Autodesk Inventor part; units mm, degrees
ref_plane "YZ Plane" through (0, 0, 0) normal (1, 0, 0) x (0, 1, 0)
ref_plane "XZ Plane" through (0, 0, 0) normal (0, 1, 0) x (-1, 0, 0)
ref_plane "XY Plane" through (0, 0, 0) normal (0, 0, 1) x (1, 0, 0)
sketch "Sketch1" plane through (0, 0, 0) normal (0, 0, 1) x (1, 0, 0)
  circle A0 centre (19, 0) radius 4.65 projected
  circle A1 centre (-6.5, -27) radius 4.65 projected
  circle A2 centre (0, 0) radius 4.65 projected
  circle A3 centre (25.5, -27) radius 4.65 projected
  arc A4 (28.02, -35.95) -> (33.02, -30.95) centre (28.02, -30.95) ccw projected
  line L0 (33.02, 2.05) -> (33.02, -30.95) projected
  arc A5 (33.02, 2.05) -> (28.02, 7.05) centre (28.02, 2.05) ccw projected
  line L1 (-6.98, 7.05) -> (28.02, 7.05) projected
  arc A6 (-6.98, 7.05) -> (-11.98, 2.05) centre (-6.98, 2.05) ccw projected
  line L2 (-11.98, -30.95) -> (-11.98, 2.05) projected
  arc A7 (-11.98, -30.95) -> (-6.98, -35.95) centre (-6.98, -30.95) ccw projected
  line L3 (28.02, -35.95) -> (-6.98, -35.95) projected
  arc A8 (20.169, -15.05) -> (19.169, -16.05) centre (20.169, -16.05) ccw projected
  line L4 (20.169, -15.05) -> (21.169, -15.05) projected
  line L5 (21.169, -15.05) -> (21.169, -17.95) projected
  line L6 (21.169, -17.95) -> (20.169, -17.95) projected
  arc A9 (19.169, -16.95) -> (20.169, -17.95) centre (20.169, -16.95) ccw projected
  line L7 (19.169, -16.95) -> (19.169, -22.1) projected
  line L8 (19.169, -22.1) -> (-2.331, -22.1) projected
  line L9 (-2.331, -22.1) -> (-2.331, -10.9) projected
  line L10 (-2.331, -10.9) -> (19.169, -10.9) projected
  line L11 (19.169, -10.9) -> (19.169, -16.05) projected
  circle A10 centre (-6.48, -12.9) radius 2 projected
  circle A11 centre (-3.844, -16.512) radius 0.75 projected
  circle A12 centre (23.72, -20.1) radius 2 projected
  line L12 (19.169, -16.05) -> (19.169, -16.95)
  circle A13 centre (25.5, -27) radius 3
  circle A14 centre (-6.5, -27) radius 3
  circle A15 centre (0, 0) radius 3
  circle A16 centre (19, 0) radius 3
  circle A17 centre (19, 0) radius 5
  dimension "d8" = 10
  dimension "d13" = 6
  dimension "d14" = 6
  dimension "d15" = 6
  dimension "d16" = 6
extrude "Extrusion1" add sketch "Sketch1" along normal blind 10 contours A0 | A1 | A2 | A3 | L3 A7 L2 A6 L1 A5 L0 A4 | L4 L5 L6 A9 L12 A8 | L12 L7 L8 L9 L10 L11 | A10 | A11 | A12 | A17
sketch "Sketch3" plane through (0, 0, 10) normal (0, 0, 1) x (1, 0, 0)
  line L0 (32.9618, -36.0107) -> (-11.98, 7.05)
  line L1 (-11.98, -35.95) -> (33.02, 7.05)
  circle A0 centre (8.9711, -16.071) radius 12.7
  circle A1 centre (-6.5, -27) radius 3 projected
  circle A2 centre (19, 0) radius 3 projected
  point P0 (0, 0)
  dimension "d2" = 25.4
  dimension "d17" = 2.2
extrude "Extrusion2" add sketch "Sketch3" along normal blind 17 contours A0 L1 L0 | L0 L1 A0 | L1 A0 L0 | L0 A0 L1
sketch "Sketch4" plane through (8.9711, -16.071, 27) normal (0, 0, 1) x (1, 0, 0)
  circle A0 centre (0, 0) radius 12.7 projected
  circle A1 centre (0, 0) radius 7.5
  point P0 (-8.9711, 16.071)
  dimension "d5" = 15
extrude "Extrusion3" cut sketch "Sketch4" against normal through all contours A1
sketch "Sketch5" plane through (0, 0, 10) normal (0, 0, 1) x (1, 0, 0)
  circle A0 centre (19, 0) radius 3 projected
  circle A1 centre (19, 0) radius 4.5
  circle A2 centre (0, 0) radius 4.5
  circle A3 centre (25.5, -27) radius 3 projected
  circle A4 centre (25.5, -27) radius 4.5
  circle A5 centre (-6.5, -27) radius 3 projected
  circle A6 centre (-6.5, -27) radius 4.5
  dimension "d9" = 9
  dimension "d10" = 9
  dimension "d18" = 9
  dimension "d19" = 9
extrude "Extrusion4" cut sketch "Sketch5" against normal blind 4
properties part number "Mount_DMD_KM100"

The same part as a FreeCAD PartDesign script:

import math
import FreeCAD as App
import Part
import Sketcher
Q = App.Units.Quantity

doc = App.newDocument("Part")
body = doc.addObject("PartDesign::Body", "Body")

sketch1 = doc.addObject("Sketcher::SketchObject", "Sketch")
body.addObject(sketch1)
sketch1.AttachmentSupport = (doc.XY_Plane, [""])
sketch1.MapMode = "FlatFace"
sketch1.addGeometry(Part.LineSegment(App.Vector(-6.98, -35.95, 0), App.Vector(28.02, -35.95, 0)), False)
sketch1.addGeometry(Part.ArcOfCircle(Part.Circle(App.Vector(28.02, -30.95, 0), App.Vector(0, 0, 1), 5), math.radians(-90), math.radians(0)), False)
sketch1.addGeometry(Part.LineSegment(App.Vector(33.02, -30.95, 0), App.Vector(33.02, 2.05, 0)), False)
sketch1.addGeometry(Part.ArcOfCircle(Part.Circle(App.Vector(28.02, 2.05, 0), App.Vector(0, 0, 1), 5), math.radians(0), math.radians(90)), False)
sketch1.addGeometry(Part.LineSegment(App.Vector(28.02, 7.05, 0), App.Vector(-6.98, 7.05, 0)), False)
sketch1.addGeometry(Part.ArcOfCircle(Part.Circle(App.Vector(-6.98, 2.05, 0), App.Vector(0, 0, 1), 5), math.radians(90), math.radians(180)), False)
sketch1.addGeometry(Part.LineSegment(App.Vector(-11.98, 2.05, 0), App.Vector(-11.98, -30.95, 0)), False)
sketch1.addGeometry(Part.ArcOfCircle(Part.Circle(App.Vector(-6.98, -30.95, 0), App.Vector(0, 0, 1), 5), math.radians(180), math.radians(270)), False)
sketch1.addGeometry(Part.Circle(App.Vector(19, 0, 0), App.Vector(0, 0, 1), 3), False)
sketch1.addGeometry(Part.Circle(App.Vector(-6.5, -27, 0), App.Vector(0, 0, 1), 3), False)
sketch1.addGeometry(Part.Circle(App.Vector(25.5, -27, 0), App.Vector(0, 0, 1), 3), False)
sketch1.addGeometry(Part.Circle(App.Vector(0, 0, 0), App.Vector(0, 0, 1), 3), False)
sketch1.addConstraint(Sketcher.Constraint("Tangent", 0, 2, 1, 1))
sketch1.addConstraint(Sketcher.Constraint("Tangent", 1, 2, 2, 1))
sketch1.addConstraint(Sketcher.Constraint("Tangent", 2, 2, 3, 1))
sketch1.addConstraint(Sketcher.Constraint("Tangent", 3, 2, 4, 1))
sketch1.addConstraint(Sketcher.Constraint("Tangent", 4, 2, 5, 1))
sketch1.addConstraint(Sketcher.Constraint("Tangent", 5, 2, 6, 1))
sketch1.addConstraint(Sketcher.Constraint("Tangent", 6, 2, 7, 1))
sketch1.addConstraint(Sketcher.Constraint("Tangent", 7, 2, 0, 1))
sketch1.addConstraint(Sketcher.Constraint("Horizontal", 0))
sketch1.addConstraint(Sketcher.Constraint("Vertical", 2))
sketch1.addConstraint(Sketcher.Constraint("Horizontal", 4))
sketch1.addConstraint(Sketcher.Constraint("Vertical", 6))
sketch1.addConstraint(Sketcher.Constraint("Coincident", 11, 3, -1, 1))
sketch1.addConstraint(Sketcher.Constraint("Equal", 1, 3))
sketch1.addConstraint(Sketcher.Constraint("Equal", 3, 5))
sketch1.addConstraint(Sketcher.Constraint("Equal", 5, 7))
sketch1.addConstraint(Sketcher.Constraint("Equal", 8, 9))
sketch1.addConstraint(Sketcher.Constraint("Equal", 9, 10))
sketch1.addConstraint(Sketcher.Constraint("Equal", 10, 11))
sketch1.addConstraint(Sketcher.Constraint("PointOnObject", 8, 3, -1))
sketch1.addConstraint(Sketcher.Constraint("Horizontal", 9, 3, 10, 3))
sketch1.addConstraint(Sketcher.Constraint("Diameter", 8, Q("6 mm")))
sketch1.addConstraint(Sketcher.Constraint("Radius", 1, Q("5 mm")))
sketch1.addConstraint(Sketcher.Constraint("DistanceX", 0, 1, 0, 2, Q("35 mm")))
sketch1.addConstraint(Sketcher.Constraint("DistanceY", 2, 1, 2, 2, Q("33 mm")))
sketch1.addConstraint(Sketcher.Constraint("DistanceX", -1, 1, 8, 3, Q("19 mm")))
sketch1.addConstraint(Sketcher.Constraint("DistanceY", 9, 3, -1, 1, Q("27 mm")))
sketch1.addConstraint(Sketcher.Constraint("DistanceX", 9, 3, 10, 3, Q("32 mm")))
sketch1.addConstraint(Sketcher.Constraint("DistanceX", 9, 3, -1, 1, Q("6.5 mm")))
sketch1.addConstraint(Sketcher.Constraint("DistanceX", -1, 1, 1, 3, Q("28.02 mm")))
sketch1.addConstraint(Sketcher.Constraint("DistanceY", 1, 3, -1, 1, Q("30.95 mm")))
pad1 = doc.addObject("PartDesign::Pad", "Pad")
body.addObject(pad1)
pad1.Profile = sketch1
pad1.Length = 10

sketch2 = doc.addObject("Sketcher::SketchObject", "Sketch001")
body.addObject(sketch2)
sketch2.AttachmentSupport = (doc.XY_Plane, [""])
sketch2.MapMode = "FlatFace"
sketch2.AttachmentOffset = App.Placement(App.Vector(0, 0, 10), App.Rotation())
sketch2.addGeometry(Part.Circle(App.Vector(8.9711, -16.071, 0), App.Vector(0, 0, 1), 12.7), False)
sketch2.addConstraint(Sketcher.Constraint("Diameter", 0, Q("25.4 mm")))
sketch2.addConstraint(Sketcher.Constraint("DistanceX", -1, 1, 0, 3, Q("8.971 mm")))
sketch2.addConstraint(Sketcher.Constraint("DistanceY", 0, 3, -1, 1, Q("16.071 mm")))
pad2 = doc.addObject("PartDesign::Pad", "Pad001")
body.addObject(pad2)
pad2.Profile = sketch2
pad2.Length = 17

sketch3 = doc.addObject("Sketcher::SketchObject", "Sketch002")
body.addObject(sketch3)
sketch3.AttachmentSupport = (doc.XY_Plane, [""])
sketch3.MapMode = "FlatFace"
sketch3.AttachmentOffset = App.Placement(App.Vector(0, 0, 27), App.Rotation())
sketch3.addGeometry(Part.Circle(App.Vector(8.9711, -16.071, 0), App.Vector(0, 0, 1), 7.5), False)
sketch3.addConstraint(Sketcher.Constraint("Diameter", 0, Q("15 mm")))
sketch3.addConstraint(Sketcher.Constraint("DistanceX", -1, 1, 0, 3, Q("8.971 mm")))
sketch3.addConstraint(Sketcher.Constraint("DistanceY", 0, 3, -1, 1, Q("16.071 mm")))
pocket1 = doc.addObject("PartDesign::Pocket", "Pocket")
body.addObject(pocket1)
pocket1.Profile = sketch3
pocket1.Type = "ThroughAll"

sketch4 = doc.addObject("Sketcher::SketchObject", "Sketch003")
body.addObject(sketch4)
sketch4.AttachmentSupport = (doc.XY_Plane, [""])
sketch4.MapMode = "FlatFace"
sketch4.AttachmentOffset = App.Placement(App.Vector(0, 0, 10), App.Rotation())
sketch4.addGeometry(Part.Circle(App.Vector(19, 0, 0), App.Vector(0, 0, 1), 4.5), False)
sketch4.addGeometry(Part.Circle(App.Vector(19, 0, 0), App.Vector(0, 0, 1), 3), False)
sketch4.addGeometry(Part.Circle(App.Vector(0, 0, 0), App.Vector(0, 0, 1), 4.5), False)
sketch4.addGeometry(Part.Circle(App.Vector(25.5, -27, 0), App.Vector(0, 0, 1), 4.5), False)
sketch4.addGeometry(Part.Circle(App.Vector(25.5, -27, 0), App.Vector(0, 0, 1), 3), False)
sketch4.addGeometry(Part.Circle(App.Vector(-6.5, -27, 0), App.Vector(0, 0, 1), 4.5), False)
sketch4.addGeometry(Part.Circle(App.Vector(-6.5, -27, 0), App.Vector(0, 0, 1), 3), False)
sketch4.addConstraint(Sketcher.Constraint("Coincident", 2, 3, -1, 1))
sketch4.addConstraint(Sketcher.Constraint("Coincident", 1, 3, 0, 3))
sketch4.addConstraint(Sketcher.Constraint("Coincident", 4, 3, 3, 3))
sketch4.addConstraint(Sketcher.Constraint("Coincident", 6, 3, 5, 3))
sketch4.addConstraint(Sketcher.Constraint("Equal", 0, 2))
sketch4.addConstraint(Sketcher.Constraint("Equal", 2, 3))
sketch4.addConstraint(Sketcher.Constraint("Equal", 1, 4))
sketch4.addConstraint(Sketcher.Constraint("Equal", 3, 5))
sketch4.addConstraint(Sketcher.Constraint("Equal", 4, 6))
sketch4.addConstraint(Sketcher.Constraint("PointOnObject", 0, 3, -1))
sketch4.addConstraint(Sketcher.Constraint("Horizontal", 4, 3, 5, 3))
sketch4.addConstraint(Sketcher.Constraint("Diameter", 0, Q("9 mm")))
sketch4.addConstraint(Sketcher.Constraint("Diameter", 1, Q("6 mm")))
sketch4.addConstraint(Sketcher.Constraint("DistanceX", -1, 1, 0, 3, Q("19 mm")))
sketch4.addConstraint(Sketcher.Constraint("DistanceY", 3, 3, -1, 1, Q("27 mm")))
sketch4.addConstraint(Sketcher.Constraint("DistanceX", 5, 3, 3, 3, Q("32 mm")))
sketch4.addConstraint(Sketcher.Constraint("DistanceX", -1, 1, 3, 3, Q("25.5 mm")))
pocket2 = doc.addObject("PartDesign::Pocket", "Pocket001")
body.addObject(pocket2)
pocket2.Profile = sketch4
pocket2.Length = 4

doc.recompute()
